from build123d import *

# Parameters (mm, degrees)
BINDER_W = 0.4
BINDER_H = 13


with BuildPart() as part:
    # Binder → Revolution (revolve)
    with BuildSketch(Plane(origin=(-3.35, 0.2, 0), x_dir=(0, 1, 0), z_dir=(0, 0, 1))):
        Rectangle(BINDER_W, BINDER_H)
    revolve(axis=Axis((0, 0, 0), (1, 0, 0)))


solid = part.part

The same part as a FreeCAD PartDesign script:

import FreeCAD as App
import Part
import Sketcher
Q = App.Units.Quantity


def add_polygon(sketch, points):
    """Adds a closed chain of lines whose ends are joined by coincident constraints."""
    first, n = sketch.GeometryCount, len(points)
    for a, b in zip(points, points[1:] + points[:1]):
        sketch.addGeometry(Part.LineSegment(App.Vector(*a, 0), App.Vector(*b, 0)), False)
    for i in range(n):
        sketch.addConstraint(Sketcher.Constraint("Coincident", first + i, 2, first + (i + 1) % n, 1))

doc = App.newDocument("Part")
body = doc.addObject("PartDesign::Body", "Body")

# Sketch on XY plane
sketch1 = doc.addObject("Sketcher::SketchObject", "Sketch")
body.addObject(sketch1)
sketch1.AttachmentSupport = (doc.XY_Plane, [""])
sketch1.MapMode = "FlatFace"
add_polygon(sketch1, [(-9.85, 0), (3.15, 0), (3.15, 0.4), (-9.85, 0.4)])  # lines 0-3
sketch1.addConstraint(Sketcher.Constraint("Horizontal", 0))
sketch1.addConstraint(Sketcher.Constraint("Vertical", 1))
sketch1.addConstraint(Sketcher.Constraint("Horizontal", 2))
sketch1.addConstraint(Sketcher.Constraint("Vertical", 3))
sketch1.addConstraint(Sketcher.Constraint("PointOnObject", 0, 2, -1))
sketch1.addConstraint(Sketcher.Constraint("DistanceX", 0, 1, 0, 2, Q("13 mm")))
sketch1.addConstraint(Sketcher.Constraint("DistanceY", 1, 1, 1, 2, Q("0.4 mm")))
sketch1.addConstraint(Sketcher.Constraint("DistanceX", -1, 1, 0, 2, Q("3.15 mm")))
revolution = doc.addObject("PartDesign::Revolution", "Revolution")
body.addObject(revolution)
revolution.Profile = sketch1
revolution.ReferenceAxis = (sketch1, ["H_Axis"])
revolution.Angle = 360

doc.recompute()
